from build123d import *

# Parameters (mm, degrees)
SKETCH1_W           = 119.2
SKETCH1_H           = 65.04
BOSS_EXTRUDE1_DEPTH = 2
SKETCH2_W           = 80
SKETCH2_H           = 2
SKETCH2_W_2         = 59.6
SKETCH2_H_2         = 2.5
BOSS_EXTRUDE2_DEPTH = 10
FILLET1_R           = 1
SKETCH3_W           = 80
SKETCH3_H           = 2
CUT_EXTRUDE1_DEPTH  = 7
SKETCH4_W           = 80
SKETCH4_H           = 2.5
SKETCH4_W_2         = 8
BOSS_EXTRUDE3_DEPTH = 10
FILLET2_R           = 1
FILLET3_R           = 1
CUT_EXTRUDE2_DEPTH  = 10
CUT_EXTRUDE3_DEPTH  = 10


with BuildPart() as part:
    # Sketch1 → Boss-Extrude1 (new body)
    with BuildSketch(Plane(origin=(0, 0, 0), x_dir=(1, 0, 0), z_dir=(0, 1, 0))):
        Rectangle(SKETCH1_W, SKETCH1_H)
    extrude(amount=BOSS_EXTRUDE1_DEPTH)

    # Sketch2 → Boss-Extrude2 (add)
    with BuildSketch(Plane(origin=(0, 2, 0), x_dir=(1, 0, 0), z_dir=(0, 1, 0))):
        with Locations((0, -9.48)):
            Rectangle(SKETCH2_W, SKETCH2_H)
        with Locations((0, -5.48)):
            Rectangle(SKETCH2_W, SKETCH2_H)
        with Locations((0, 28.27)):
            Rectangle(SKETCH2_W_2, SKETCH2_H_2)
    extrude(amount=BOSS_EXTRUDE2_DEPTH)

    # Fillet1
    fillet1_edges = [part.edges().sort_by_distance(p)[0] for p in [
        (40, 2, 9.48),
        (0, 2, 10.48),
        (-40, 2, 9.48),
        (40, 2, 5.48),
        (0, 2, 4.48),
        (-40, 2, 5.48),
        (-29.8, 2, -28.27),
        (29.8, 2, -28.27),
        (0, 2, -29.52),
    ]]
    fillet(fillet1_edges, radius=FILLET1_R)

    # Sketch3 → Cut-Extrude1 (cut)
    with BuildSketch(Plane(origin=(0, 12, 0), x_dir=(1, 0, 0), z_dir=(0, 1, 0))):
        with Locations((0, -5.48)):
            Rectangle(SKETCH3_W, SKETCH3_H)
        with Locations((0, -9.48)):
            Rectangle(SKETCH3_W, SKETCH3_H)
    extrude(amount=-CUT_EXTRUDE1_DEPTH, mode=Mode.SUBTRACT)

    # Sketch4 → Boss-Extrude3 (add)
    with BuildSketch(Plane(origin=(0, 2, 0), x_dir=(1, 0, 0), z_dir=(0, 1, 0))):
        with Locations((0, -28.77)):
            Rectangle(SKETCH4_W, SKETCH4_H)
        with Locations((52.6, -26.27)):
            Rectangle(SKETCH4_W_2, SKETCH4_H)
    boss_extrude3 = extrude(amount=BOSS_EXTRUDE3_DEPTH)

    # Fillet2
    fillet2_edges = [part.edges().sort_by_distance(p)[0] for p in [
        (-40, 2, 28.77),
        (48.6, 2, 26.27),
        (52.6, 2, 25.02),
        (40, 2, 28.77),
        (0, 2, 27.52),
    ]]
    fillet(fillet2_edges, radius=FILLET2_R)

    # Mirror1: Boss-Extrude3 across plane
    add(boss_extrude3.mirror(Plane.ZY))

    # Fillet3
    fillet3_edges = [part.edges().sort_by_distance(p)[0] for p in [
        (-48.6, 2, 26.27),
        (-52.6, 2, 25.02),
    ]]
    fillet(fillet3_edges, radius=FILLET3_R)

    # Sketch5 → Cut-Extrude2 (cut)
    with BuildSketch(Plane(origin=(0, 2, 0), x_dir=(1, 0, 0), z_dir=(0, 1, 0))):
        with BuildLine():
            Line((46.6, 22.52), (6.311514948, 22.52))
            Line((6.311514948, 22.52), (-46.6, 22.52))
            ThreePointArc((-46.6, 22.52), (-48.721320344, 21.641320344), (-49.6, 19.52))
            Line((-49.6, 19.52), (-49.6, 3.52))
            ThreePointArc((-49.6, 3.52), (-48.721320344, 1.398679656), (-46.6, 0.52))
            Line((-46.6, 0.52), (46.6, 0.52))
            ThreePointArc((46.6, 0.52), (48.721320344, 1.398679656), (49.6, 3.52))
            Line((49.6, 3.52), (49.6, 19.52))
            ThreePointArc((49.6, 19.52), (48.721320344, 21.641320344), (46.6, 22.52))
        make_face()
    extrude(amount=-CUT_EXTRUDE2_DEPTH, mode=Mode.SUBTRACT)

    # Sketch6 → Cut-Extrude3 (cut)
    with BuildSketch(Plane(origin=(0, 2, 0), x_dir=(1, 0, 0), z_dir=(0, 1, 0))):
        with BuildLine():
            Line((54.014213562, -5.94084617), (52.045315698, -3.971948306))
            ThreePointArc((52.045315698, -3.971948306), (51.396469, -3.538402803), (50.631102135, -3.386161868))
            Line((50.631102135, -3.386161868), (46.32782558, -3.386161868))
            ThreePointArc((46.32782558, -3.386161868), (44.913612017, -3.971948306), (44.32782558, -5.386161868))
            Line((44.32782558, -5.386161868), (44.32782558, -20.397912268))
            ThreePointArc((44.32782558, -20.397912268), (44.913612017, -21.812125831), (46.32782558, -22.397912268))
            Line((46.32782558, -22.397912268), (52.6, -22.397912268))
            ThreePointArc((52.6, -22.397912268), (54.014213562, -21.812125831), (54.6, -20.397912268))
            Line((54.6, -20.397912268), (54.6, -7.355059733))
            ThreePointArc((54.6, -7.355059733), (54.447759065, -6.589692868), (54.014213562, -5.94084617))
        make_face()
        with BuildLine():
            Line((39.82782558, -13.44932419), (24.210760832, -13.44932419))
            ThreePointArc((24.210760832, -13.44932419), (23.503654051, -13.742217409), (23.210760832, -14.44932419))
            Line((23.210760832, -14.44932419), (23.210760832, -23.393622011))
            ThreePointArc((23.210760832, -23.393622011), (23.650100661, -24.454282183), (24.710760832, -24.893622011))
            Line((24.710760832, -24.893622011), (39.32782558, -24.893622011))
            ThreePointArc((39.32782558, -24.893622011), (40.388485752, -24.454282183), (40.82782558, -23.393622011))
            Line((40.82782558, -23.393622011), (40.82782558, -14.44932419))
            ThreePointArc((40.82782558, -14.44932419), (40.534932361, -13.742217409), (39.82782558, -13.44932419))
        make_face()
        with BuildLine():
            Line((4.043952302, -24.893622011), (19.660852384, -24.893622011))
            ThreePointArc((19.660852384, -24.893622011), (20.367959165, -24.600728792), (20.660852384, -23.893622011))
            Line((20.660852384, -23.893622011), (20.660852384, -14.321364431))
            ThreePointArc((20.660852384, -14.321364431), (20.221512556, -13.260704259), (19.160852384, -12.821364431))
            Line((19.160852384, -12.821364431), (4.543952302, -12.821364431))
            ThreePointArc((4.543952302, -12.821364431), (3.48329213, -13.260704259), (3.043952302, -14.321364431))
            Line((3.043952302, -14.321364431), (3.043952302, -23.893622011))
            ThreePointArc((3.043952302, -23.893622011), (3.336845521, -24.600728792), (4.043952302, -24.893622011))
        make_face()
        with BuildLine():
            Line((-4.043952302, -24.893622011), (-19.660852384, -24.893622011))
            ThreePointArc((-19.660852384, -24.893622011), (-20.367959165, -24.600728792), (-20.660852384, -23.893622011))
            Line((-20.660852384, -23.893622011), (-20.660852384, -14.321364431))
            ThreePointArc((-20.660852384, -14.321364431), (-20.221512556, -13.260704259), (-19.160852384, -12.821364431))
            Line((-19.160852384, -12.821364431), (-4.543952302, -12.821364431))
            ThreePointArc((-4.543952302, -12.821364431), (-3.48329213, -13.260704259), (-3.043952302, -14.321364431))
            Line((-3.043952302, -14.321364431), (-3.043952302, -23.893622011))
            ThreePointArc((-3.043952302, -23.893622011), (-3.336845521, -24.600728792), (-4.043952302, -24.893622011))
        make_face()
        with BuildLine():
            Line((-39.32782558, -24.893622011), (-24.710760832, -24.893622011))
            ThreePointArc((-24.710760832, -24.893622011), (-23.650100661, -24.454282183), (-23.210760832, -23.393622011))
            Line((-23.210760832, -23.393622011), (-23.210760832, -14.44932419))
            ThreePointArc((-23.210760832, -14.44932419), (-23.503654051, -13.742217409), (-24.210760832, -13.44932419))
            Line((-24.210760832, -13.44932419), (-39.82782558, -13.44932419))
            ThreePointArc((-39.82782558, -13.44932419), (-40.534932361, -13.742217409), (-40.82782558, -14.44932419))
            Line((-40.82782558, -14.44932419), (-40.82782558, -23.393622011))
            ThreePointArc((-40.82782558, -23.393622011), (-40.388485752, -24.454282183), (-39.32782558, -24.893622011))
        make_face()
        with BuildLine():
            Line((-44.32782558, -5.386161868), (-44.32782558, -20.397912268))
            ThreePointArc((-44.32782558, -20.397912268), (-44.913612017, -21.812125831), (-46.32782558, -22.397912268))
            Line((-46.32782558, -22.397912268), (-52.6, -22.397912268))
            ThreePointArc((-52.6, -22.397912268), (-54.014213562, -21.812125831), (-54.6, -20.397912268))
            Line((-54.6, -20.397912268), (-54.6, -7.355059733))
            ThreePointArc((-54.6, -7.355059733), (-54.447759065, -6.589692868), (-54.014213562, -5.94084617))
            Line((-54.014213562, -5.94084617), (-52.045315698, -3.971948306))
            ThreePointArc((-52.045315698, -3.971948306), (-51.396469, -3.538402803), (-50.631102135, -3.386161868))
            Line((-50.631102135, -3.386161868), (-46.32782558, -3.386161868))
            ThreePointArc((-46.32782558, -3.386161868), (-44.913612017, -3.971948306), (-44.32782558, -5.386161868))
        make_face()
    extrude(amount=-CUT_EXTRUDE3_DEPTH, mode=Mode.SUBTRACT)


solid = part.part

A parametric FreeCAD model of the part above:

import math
import FreeCAD as App
import Part
import Sketcher

V = App.Vector


def edges_at(feature, points):
    """Names of the edges that pass closest to the given points."""
    edges = feature.Shape.Edges
    near = lambda p: min(range(len(edges)), key=lambda i: edges[i].distToShape(Part.Vertex(*p))[0])
    return sorted({f"Edge{near(p) + 1}" for p in points})


def add_polygon(sketch, points):
    """Adds a closed chain of lines whose ends are joined by coincident constraints."""
    first, n = sketch.GeometryCount, len(points)
    for a, b in zip(points, points[1:] + points[:1]):
        sketch.addGeometry(Part.LineSegment(App.Vector(*a, 0), App.Vector(*b, 0)), False)
    for i in range(n):
        sketch.addConstraint(Sketcher.Constraint("Coincident", first + i, 2, first + (i + 1) % n, 1))

doc = App.newDocument("Part")
body = doc.addObject("PartDesign::Body", "Body")

# Sketch on XZ plane
sketch1 = body.newObject("Sketcher::SketchObject", "Sketch")
sketch1.AttachmentSupport = (doc.getObject("XZ_Plane"), [""])
sketch1.MapMode = "FlatFace"
add_polygon(sketch1, [(-60, -33), (-60, 33), (60, 33), (60, -33)])  # lines 0-3
sketch1.addConstraint([
    Sketcher.Constraint("Vertical", 0),
    Sketcher.Constraint("Horizontal", 1),
    Sketcher.Constraint("Vertical", 2),
    Sketcher.Constraint("Horizontal", 3),
    Sketcher.Constraint("Symmetric", 0, 2, 2, 2, -1, 1),
    Sketcher.Constraint("DistanceX", 1, 1, 1, 2, 119.2),
    Sketcher.Constraint("DistanceY", 0, 1, 0, 2, 65.04),
])
pad1 = body.newObject("PartDesign::Pad", "Pad")
pad1.Profile = sketch1
pad1.Length = 2
pad1.Reversed = True

# Sketch on XZ plane
sketch2 = body.newObject("Sketcher::SketchObject", "Sketch001")
sketch2.AttachmentSupport = (doc.getObject("XZ_Plane"), [""])
sketch2.MapMode = "FlatFace"
sketch2.AttachmentOffset = App.Placement(V(0, 0, -2), App.Rotation())
add_polygon(sketch2, [(-40, 8.5), (-40, 10.5), (40, 10.5), (40, 8.5)])  # lines 0-3
add_polygon(sketch2, [(-40, 4.5), (-40, 6.5), (40, 6.5), (40, 4.5)])  # lines 4-7
add_polygon(sketch2, [(-29.8, -29.5), (-29.8, -27), (29.8, -27), (29.8, -29.5)])  # lines 8-11
sketch2.addConstraint([
    Sketcher.Constraint("Vertical", 0),
    Sketcher.Constraint("Horizontal", 1),
    Sketcher.Constraint("Vertical", 2),
    Sketcher.Constraint("Horizontal", 3),
    Sketcher.Constraint("Vertical", 4),
    Sketcher.Constraint("Horizontal", 5),
    Sketcher.Constraint("Vertical", 6),
    Sketcher.Constraint("Horizontal", 7),
    Sketcher.Constraint("Vertical", 8),
    Sketcher.Constraint("Horizontal", 9),
    Sketcher.Constraint("Vertical", 10),
    Sketcher.Constraint("Horizontal", 11),
    Sketcher.Constraint("Vertical", 3, 2, 4, 2),
    Sketcher.Constraint("Vertical", 2, 2, 5, 2),
    Sketcher.Constraint("Equal", 2, 4),
    Sketcher.Constraint("DistanceX", 1, 1, 1, 2, 80.0),
    Sketcher.Constraint("DistanceY", 0, 1, 0, 2, 2.0),
    Sketcher.Constraint("DistanceX", 9, 1, 9, 2, 59.6),
    Sketcher.Constraint("DistanceY", 8, 1, 8, 2, 2.5),
    Sketcher.Constraint("DistanceX", 0, 2, -1, 1, 40.0),
    Sketcher.Constraint("DistanceY", 4, 2, 3, 2, 2.0),
    Sketcher.Constraint("DistanceY", 10, 2, 6, 2, 34.0),
    Sketcher.Constraint("DistanceX", 8, 2, -1, 1, 29.8),
    Sketcher.Constraint("DistanceY", -1, 1, 0, 2, 10.48),
])
pad2 = body.newObject("PartDesign::Pad", "Pad001")
pad2.Profile = sketch2
pad2.Length = 10
pad2.Reversed = True
doc.recompute()

fillet = body.newObject("PartDesign::Fillet", "Fillet")
fillet.Base = (pad2, edges_at(pad2, [
    (40, 2, 9.48),
    (0, 2, 10.48),
    (-40, 2, 9.48),
    (40, 2, 5.48),
    (0, 2, 4.48),
    (-40, 2, 5.48),
    (-29.8, 2, -28.27),
    (29.8, 2, -28.27),
    (0, 2, -29.52),
]))
fillet.Radius = 1

# Sketch on XZ plane
sketch3 = body.newObject("Sketcher::SketchObject", "Sketch002")
sketch3.AttachmentSupport = (doc.getObject("XZ_Plane"), [""])
sketch3.MapMode = "FlatFace"
sketch3.AttachmentOffset = App.Placement(V(0, 0, -12), App.Rotation())
add_polygon(sketch3, [(-40, 4.5), (-40, 6.5), (40, 6.5), (40, 4.5)])  # lines 0-3
add_polygon(sketch3, [(-40, 8.5), (-40, 10.5), (40, 10.5), (40, 8.5)])  # lines 4-7
sketch3.addConstraint([
    Sketcher.Constraint("Vertical", 0),
    Sketcher.Constraint("Horizontal", 1),
    Sketcher.Constraint("Vertical", 2),
    Sketcher.Constraint("Horizontal", 3),
    Sketcher.Constraint("Vertical", 4),
    Sketcher.Constraint("Horizontal", 5),
    Sketcher.Constraint("Vertical", 6),
    Sketcher.Constraint("Horizontal", 7),
    Sketcher.Constraint("Vertical", 3, 2, 4, 2),
    Sketcher.Constraint("Vertical", 2, 2, 5, 2),
    Sketcher.Constraint("Equal", 2, 4),
    Sketcher.Constraint("DistanceX", 1, 1, 1, 2, 80.0),
    Sketcher.Constraint("DistanceY", 0, 1, 0, 2, 2.0),
    Sketcher.Constraint("DistanceX", 0, 2, -1, 1, 40.0),
    Sketcher.Constraint("DistanceY", 0, 2, 4, 2, 4.0),
    Sketcher.Constraint("DistanceY", -1, 1, 0, 2, 6.48),
])
pocket1 = body.newObject("PartDesign::Pocket", "Pocket")
pocket1.Profile = sketch3
pocket1.Length = 7
pocket1.Reversed = True

# Sketch on XZ plane
sketch4 = body.newObject("Sketcher::SketchObject", "Sketch003")
sketch4.AttachmentSupport = (doc.getObject("XZ_Plane"), [""])
sketch4.MapMode = "FlatFace"
sketch4.AttachmentOffset = App.Placement(V(0, 0, -2), App.Rotation())
add_polygon(sketch4, [(-40, 27.5), (-40, 30), (40, 30), (40, 27.5)])  # lines 0-3
add_polygon(sketch4, [(48.6, 25), (48.6, 27.5), (56.6, 27.5), (56.6, 25)])  # lines 4-7
sketch4.addConstraint([
    Sketcher.Constraint("Vertical", 0),
    Sketcher.Constraint("Horizontal", 1),
    Sketcher.Constraint("Vertical", 2),
    Sketcher.Constraint("Horizontal", 3),
    Sketcher.Constraint("Vertical", 4),
    Sketcher.Constraint("Horizontal", 5),
    Sketcher.Constraint("Vertical", 6),
    Sketcher.Constraint("Horizontal", 7),
    Sketcher.Constraint("Horizontal", 3, 2, 4, 2),
    Sketcher.Constraint("Equal", 2, 4),
    Sketcher.Constraint("DistanceX", 1, 1, 1, 2, 80.0),
    Sketcher.Constraint("DistanceX", 5, 1, 5, 2, 8.0),
    Sketcher.Constraint("DistanceY", 0, 1, 0, 2, 2.5),
    Sketcher.Constraint("DistanceX", 0, 2, -1, 1, 40.0),
    Sketcher.Constraint("DistanceX", -1, 1, 4, 2, 48.6),
    Sketcher.Constraint("DistanceY", -1, 1, 0, 2, 30.02),
])
pad3 = body.newObject("PartDesign::Pad", "Pad002")
pad3.Profile = sketch4
pad3.Length = 10
pad3.Reversed = True
doc.recompute()

fillet2 = body.newObject("PartDesign::Fillet", "Fillet001")
fillet2.Base = (pad3, edges_at(pad3, [
    (-40, 2, 28.77),
    (48.6, 2, 26.27),
    (52.6, 2, 25.02),
    (40, 2, 28.77),
    (0, 2, 27.52),
]))
fillet2.Radius = 1
doc.recompute()

mirrored = body.newObject("PartDesign::Mirrored", "Mirrored")
mirrored.Originals = [pad3]
mirrored.MirrorPlane = (doc.getObject("YZ_Plane"), [""])
body.Tip = mirrored
doc.recompute()

fillet3 = body.newObject("PartDesign::Fillet", "Fillet002")
fillet3.Base = (mirrored, edges_at(mirrored, [(-48.6, 2, 26.27), (-52.6, 2, 25.02)]))
fillet3.Radius = 1

# Sketch on XZ plane
sketch5 = body.newObject("Sketcher::SketchObject", "Sketch004")
sketch5.AttachmentSupport = (doc.getObject("XZ_Plane"), [""])
sketch5.MapMode = "FlatFace"
sketch5.AttachmentOffset = App.Placement(V(0, 0, -2), App.Rotation())
sketch5.addGeometry([
    Part.LineSegment(V(46.6, -22.5, 0), V(-46.6, -22.5, 0)),  # 0
    Part.ArcOfCircle(Part.Circle(V(-46.6, -19.5, 0), V(0, 0, 1), 3), math.radians(180), math.radians(270)),  # 1
    Part.LineSegment(V(-49.6, -19.5, 0), V(-49.6, -3.5, 0)),  # 2
    Part.ArcOfCircle(Part.Circle(V(-46.6, -3.5, 0), V(0, 0, 1), 3), math.radians(90), math.radians(180)),  # 3
    Part.LineSegment(V(-46.6, -0.5, 0), V(46.6, -0.5, 0)),  # 4
    Part.ArcOfCircle(Part.Circle(V(46.6, -3.5, 0), V(0, 0, 1), 3), math.radians(0), math.radians(90)),  # 5
    Part.LineSegment(V(49.6, -3.5, 0), V(49.6, -19.5, 0)),  # 6
    Part.ArcOfCircle(Part.Circle(V(46.6, -19.5, 0), V(0, 0, 1), 3), math.radians(-90), math.radians(0)),  # 7
], False)
sketch5.addConstraint([
    Sketcher.Constraint("Tangent", 0, 2, 1, 2),
    Sketcher.Constraint("Tangent", 1, 1, 2, 1),
    Sketcher.Constraint("Tangent", 2, 2, 3, 2),
    Sketcher.Constraint("Tangent", 3, 1, 4, 1),
    Sketcher.Constraint("Tangent", 4, 2, 5, 2),
    Sketcher.Constraint("Tangent", 5, 1, 6, 1),
    Sketcher.Constraint("Tangent", 6, 2, 7, 2),
    Sketcher.Constraint("Tangent", 7, 1, 0, 1),
    Sketcher.Constraint("Horizontal", 0),
    Sketcher.Constraint("Vertical", 2),
    Sketcher.Constraint("Horizontal", 4),
    Sketcher.Constraint("Vertical", 6),
    Sketcher.Constraint("Equal", 1, 3),
    Sketcher.Constraint("Equal", 3, 5),
    Sketcher.Constraint("Equal", 5, 7),
    Sketcher.Constraint("Radius", 1, 3.0),
    Sketcher.Constraint("DistanceY", 2, 1, 2, 2, 16.0),
    Sketcher.Constraint("DistanceX", 0, 2, 0, 1, 93.2),
    Sketcher.Constraint("DistanceX", 1, 3, -1, 1, 46.6),
    Sketcher.Constraint("DistanceY", 1, 3, -1, 1, 19.52),
])
pocket2 = body.newObject("PartDesign::Pocket", "Pocket001")
pocket2.Profile = sketch5
pocket2.Length = 10
pocket2.Reversed = True

# Sketch on XZ plane
sketch6 = body.newObject("Sketcher::SketchObject", "Sketch005")
sketch6.AttachmentSupport = (doc.getObject("XZ_Plane"), [""])
sketch6.MapMode = "FlatFace"
sketch6.AttachmentOffset = App.Placement(V(0, 0, -2), App.Rotation())
sketch6.addGeometry([
    Part.LineSegment(V(54, 5.9, 0), V(52, 4, 0)),  # 0
    Part.ArcOfCircle(Part.Circle(V(50.6, 5.4, 0), V(0, 0, 1), 2), math.radians(-90), math.radians(-45)),  # 1
    Part.LineSegment(V(50.6, 3.4, 0), V(46.3, 3.4, 0)),  # 2
    Part.ArcOfCircle(Part.Circle(V(46.3, 5.4, 0), V(0, 0, 1), 2), math.radians(180), math.radians(270)),  # 3
    Part.LineSegment(V(44.3, 5.4, 0), V(44.3, 20.4, 0)),  # 4
    Part.ArcOfCircle(Part.Circle(V(46.3, 20.4, 0), V(0, 0, 1), 2), math.radians(90), math.radians(180)),  # 5
    Part.LineSegment(V(46.3, 22.4, 0), V(52.6, 22.4, 0)),  # 6
    Part.ArcOfCircle(Part.Circle(V(52.6, 20.4, 0), V(0, 0, 1), 2), math.radians(0), math.radians(90)),  # 7
    Part.LineSegment(V(54.6, 20.4, 0), V(54.6, 7.4, 0)),  # 8
    Part.ArcOfCircle(Part.Circle(V(52.6, 7.4, 0), V(0, 0, 1), 2), math.radians(-45), math.radians(0)),  # 9
    Part.LineSegment(V(39.8, 13.4, 0), V(24.2, 13.4, 0)),  # 10
    Part.ArcOfCircle(Part.Circle(V(24.2, 14.4, 0), V(0, 0, 1), 1), math.radians(-180), math.radians(-90)),  # 11
    Part.LineSegment(V(23.2, 14.4, 0), V(23.2, 23.4, 0)),  # 12
    Part.ArcOfCircle(Part.Circle(V(24.7, 23.4, 0), V(0, 0, 1), 1.5), math.radians(90), math.radians(180)),  # 13
    Part.LineSegment(V(24.7, 24.9, 0), V(39.3, 24.9, 0)),  # 14
    Part.ArcOfCircle(Part.Circle(V(39.3, 23.4, 0), V(0, 0, 1), 1.5), math.radians(0), math.radians(90)),  # 15
    Part.LineSegment(V(40.8, 23.4, 0), V(40.8, 14.4, 0)),  # 16
    Part.ArcOfCircle(Part.Circle(V(39.8, 14.4, 0), V(0, 0, 1), 1), math.radians(-90), math.radians(0)),  # 17
    Part.LineSegment(V(4, 24.9, 0), V(19.7, 24.9, 0)),  # 18
    Part.ArcOfCircle(Part.Circle(V(19.7, 23.9, 0), V(0, 0, 1), 1), math.radians(0), math.radians(90)),  # 19
    Part.LineSegment(V(20.7, 23.9, 0), V(20.7, 14.3, 0)),  # 20
    Part.ArcOfCircle(Part.Circle(V(19.2, 14.3, 0), V(0, 0, 1), 1.5), math.radians(-90), math.radians(0)),  # 21
    Part.LineSegment(V(19.2, 12.8, 0), V(4.5, 12.8, 0)),  # 22
    Part.ArcOfCircle(Part.Circle(V(4.5, 14.3, 0), V(0, 0, 1), 1.5), math.radians(180), math.radians(270)),  # 23
    Part.LineSegment(V(3, 14.3, 0), V(3, 23.9, 0)),  # 24
    Part.ArcOfCircle(Part.Circle(V(4, 23.9, 0), V(0, 0, 1), 1), math.radians(90), math.radians(180)),  # 25
    Part.LineSegment(V(-19.7, 24.9, 0), V(-4, 24.9, 0)),  # 26
    Part.ArcOfCircle(Part.Circle(V(-4, 23.9, 0), V(0, 0, 1), 1), math.radians(0), math.radians(90)),  # 27
    Part.LineSegment(V(-3, 23.9, 0), V(-3, 14.3, 0)),  # 28
    Part.ArcOfCircle(Part.Circle(V(-4.5, 14.3, 0), V(0, 0, 1), 1.5), math.radians(-90), math.radians(0)),  # 29
    Part.LineSegment(V(-4.5, 12.8, 0), V(-19.2, 12.8, 0)),  # 30
    Part.ArcOfCircle(Part.Circle(V(-19.2, 14.3, 0), V(0, 0, 1), 1.5), math.radians(180), math.radians(270)),  # 31
    Part.LineSegment(V(-20.7, 14.3, 0), V(-20.7, 23.9, 0)),  # 32
    Part.ArcOfCircle(Part.Circle(V(-19.7, 23.9, 0), V(0, 0, 1), 1), math.radians(90), math.radians(180)),  # 33
    Part.LineSegment(V(-39.3, 24.9, 0), V(-24.7, 24.9, 0)),  # 34
    Part.ArcOfCircle(Part.Circle(V(-24.7, 23.4, 0), V(0, 0, 1), 1.5), math.radians(0), math.radians(90)),  # 35
    Part.LineSegment(V(-23.2, 23.4, 0), V(-23.2, 14.4, 0)),  # 36
    Part.ArcOfCircle(Part.Circle(V(-24.2, 14.4, 0), V(0, 0, 1), 1), math.radians(-90), math.radians(0)),  # 37
    Part.LineSegment(V(-24.2, 13.4, 0), V(-39.8, 13.4, 0)),  # 38
    Part.ArcOfCircle(Part.Circle(V(-39.8, 14.4, 0), V(0, 0, 1), 1), math.radians(-180), math.radians(-90)),  # 39
    Part.LineSegment(V(-40.8, 14.4, 0), V(-40.8, 23.4, 0)),  # 40
    Part.ArcOfCircle(Part.Circle(V(-39.3, 23.4, 0), V(0, 0, 1), 1.5), math.radians(90), math.radians(180)),  # 41
    Part.LineSegment(V(-44.3, 20.4, 0), V(-44.3, 5.4, 0)),  # 42
    Part.ArcOfCircle(Part.Circle(V(-46.3, 5.4, 0), V(0, 0, 1), 2), math.radians(-90), math.radians(0)),  # 43
    Part.LineSegment(V(-46.3, 3.4, 0), V(-50.6, 3.4, 0)),  # 44
    Part.ArcOfCircle(Part.Circle(V(-50.6, 5.4, 0), V(0, 0, 1), 2), math.radians(-135), math.radians(-90)),  # 45
    Part.LineSegment(V(-52, 4, 0), V(-54, 5.9, 0)),  # 46
    Part.ArcOfCircle(Part.Circle(V(-52.6, 7.4, 0), V(0, 0, 1), 2), math.radians(180), math.radians(225)),  # 47
    Part.LineSegment(V(-54.6, 7.4, 0), V(-54.6, 20.4, 0)),  # 48
    Part.ArcOfCircle(Part.Circle(V(-52.6, 20.4, 0), V(0, 0, 1), 2), math.radians(90), math.radians(180)),  # 49
    Part.LineSegment(V(-52.6, 22.4, 0), V(-46.3, 22.4, 0)),  # 50
    Part.ArcOfCircle(Part.Circle(V(-46.3, 20.4, 0), V(0, 0, 1), 2), math.radians(0), math.radians(90)),  # 51
], False)
sketch6.addConstraint([
    Sketcher.Constraint("Tangent", 0, 2, 1, 2),
    Sketcher.Constraint("Tangent", 1, 1, 2, 1),
    Sketcher.Constraint("Tangent", 2, 2, 3, 2),
    Sketcher.Constraint("Tangent", 3, 1, 4, 1),
    Sketcher.Constraint("Tangent", 4, 2, 5, 2),
    Sketcher.Constraint("Tangent", 5, 1, 6, 1),
    Sketcher.Constraint("Tangent", 6, 2, 7, 2),
    Sketcher.Constraint("Tangent", 7, 1, 8, 1),
    Sketcher.Constraint("Tangent", 8, 2, 9, 2),
    Sketcher.Constraint("Tangent", 9, 1, 0, 1),
    Sketcher.Constraint("Tangent", 10, 2, 11, 2),
    Sketcher.Constraint("Tangent", 11, 1, 12, 1),
    Sketcher.Constraint("Tangent", 12, 2, 13, 2),
    Sketcher.Constraint("Tangent", 13, 1, 14, 1),
    Sketcher.Constraint("Tangent", 14, 2, 15, 2),
    Sketcher.Constraint("Tangent", 15, 1, 16, 1),
    Sketcher.Constraint("Tangent", 16, 2, 17, 2),
    Sketcher.Constraint("Tangent", 17, 1, 10, 1),
    Sketcher.Constraint("Tangent", 18, 2, 19, 2),
    Sketcher.Constraint("Tangent", 19, 1, 20, 1),
    Sketcher.Constraint("Tangent", 20, 2, 21, 2),
    Sketcher.Constraint("Tangent", 21, 1, 22, 1),
    Sketcher.Constraint("Tangent", 22, 2, 23, 2),
    Sketcher.Constraint("Tangent", 23, 1, 24, 1),
    Sketcher.Constraint("Tangent", 24, 2, 25, 2),
    Sketcher.Constraint("Tangent", 25, 1, 18, 1),
    Sketcher.Constraint("Tangent", 26, 2, 27, 2),
    Sketcher.Constraint("Tangent", 27, 1, 28, 1),
    Sketcher.Constraint("Tangent", 28, 2, 29, 2),
    Sketcher.Constraint("Tangent", 29, 1, 30, 1),
    Sketcher.Constraint("Tangent", 30, 2, 31, 2),
    Sketcher.Constraint("Tangent", 31, 1, 32, 1),
    Sketcher.Constraint("Tangent", 32, 2, 33, 2),
    Sketcher.Constraint("Tangent", 33, 1, 26, 1),
    Sketcher.Constraint("Tangent", 34, 2, 35, 2),
    Sketcher.Constraint("Tangent", 35, 1, 36, 1),
    Sketcher.Constraint("Tangent", 36, 2, 37, 2),
    Sketcher.Constraint("Tangent", 37, 1, 38, 1),
    Sketcher.Constraint("Tangent", 38, 2, 39, 2),
    Sketcher.Constraint("Tangent", 39, 1, 40, 1),
    Sketcher.Constraint("Tangent", 40, 2, 41, 2),
    Sketcher.Constraint("Tangent", 41, 1, 34, 1),
    Sketcher.Constraint("Tangent", 42, 2, 43, 2),
    Sketcher.Constraint("Tangent", 43, 1, 44, 1),
    Sketcher.Constraint("Tangent", 44, 2, 45, 2),
    Sketcher.Constraint("Tangent", 45, 1, 46, 1),
    Sketcher.Constraint("Tangent", 46, 2, 47, 2),
    Sketcher.Constraint("Tangent", 47, 1, 48, 1),
    Sketcher.Constraint("Tangent", 48, 2, 49, 2),
    Sketcher.Constraint("Tangent", 49, 1, 50, 1),
    Sketcher.Constraint("Tangent", 50, 2, 51, 2),
    Sketcher.Constraint("Tangent", 51, 1, 42, 1),
    Sketcher.Constraint("Horizontal", 2),
    Sketcher.Constraint("Vertical", 4),
    Sketcher.Constraint("Horizontal", 6),
    Sketcher.Constraint("Vertical", 8),
    Sketcher.Constraint("Horizontal", 10),
    Sketcher.Constraint("Vertical", 12),
    Sketcher.Constraint("Horizontal", 14),
    Sketcher.Constraint("Vertical", 16),
    Sketcher.Constraint("Horizontal", 18),
    Sketcher.Constraint("Vertical", 20),
    Sketcher.Constraint("Horizontal", 22),
    Sketcher.Constraint("Vertical", 24),
    Sketcher.Constraint("Horizontal", 26),
    Sketcher.Constraint("Vertical", 28),
    Sketcher.Constraint("Horizontal", 30),
    Sketcher.Constraint("Vertical", 32),
    Sketcher.Constraint("Horizontal", 34),
    Sketcher.Constraint("Vertical", 36),
    Sketcher.Constraint("Horizontal", 38),
    Sketcher.Constraint("Vertical", 40),
    Sketcher.Constraint("Vertical", 42),
    Sketcher.Constraint("Horizontal", 44),
    Sketcher.Constraint("Vertical", 48),
    Sketcher.Constraint("Horizontal", 50),
    Sketcher.Constraint("Equal", 1, 3),
    Sketcher.Constraint("Equal", 3, 5),
    Sketcher.Constraint("Equal", 5, 7),
    Sketcher.Constraint("Equal", 7, 9),
    Sketcher.Constraint("Equal", 13, 15),
    Sketcher.Constraint("Equal", 11, 17),
    Sketcher.Constraint("Equal", 17, 19),
    Sketcher.Constraint("Equal", 15, 21),
    Sketcher.Constraint("Equal", 21, 23),
    Sketcher.Constraint("Equal", 19, 25),
    Sketcher.Constraint("Equal", 25, 27),
    Sketcher.Constraint("Equal", 23, 29),
    Sketcher.Constraint("Equal", 29, 31),
    Sketcher.Constraint("Equal", 27, 33),
    Sketcher.Constraint("Equal", 31, 35),
    Sketcher.Constraint("Equal", 33, 37),
    Sketcher.Constraint("Equal", 37, 39),
    Sketcher.Constraint("Equal", 35, 41),
    Sketcher.Constraint("Equal", 9, 43),
    Sketcher.Constraint("Equal", 43, 45),
    Sketcher.Constraint("Equal", 45, 47),
    Sketcher.Constraint("Equal", 47, 49),
    Sketcher.Constraint("Equal", 49, 51),
    Sketcher.Constraint("Symmetric", 25, 3, 27, 3, -2),
    Sketcher.Constraint("Symmetric", 21, 3, 31, 3, -2),
    Sketcher.Constraint("Symmetric", 13, 3, 35, 3, -2),
    Sketcher.Constraint("Symmetric", 17, 3, 39, 3, -2),
    Sketcher.Constraint("Symmetric", 3, 3, 43, 3, -2),
    Sketcher.Constraint("Symmetric", 9, 3, 47, 3, -2),
    Sketcher.Constraint("Perpendicular", 0, 46),
    Sketcher.Constraint("Horizontal", 7, 3, 49, 3),
    Sketcher.Constraint("Horizontal", 14, 2, 18, 2),
    Sketcher.Constraint("Horizontal", 0, 2, 45, 1),
    Sketcher.Constraint("Radius", 1, 2.0),
    Sketcher.Constraint("Radius", 11, 1.0),
    Sketcher.Constraint("Radius", 13, 1.5),
    Sketcher.Constraint("DistanceX", -1, 1, 7, 3, 52.6),
    Sketcher.Constraint("DistanceX", 18, 1, 18, 2, 15.6169),
    Sketcher.Constraint("DistanceY", 4, 1, 4, 2, 15.01175),
    Sketcher.Constraint("DistanceX", 2, 2, 2, 1, 4.303277),
    Sketcher.Constraint("DistanceX", 6, 1, 6, 2, 6.272174),
    Sketcher.Constraint("DistanceX", 10, 2, 10, 1, 15.617065),
    Sketcher.Constraint("DistanceY", 12, 1, 12, 2, 8.944298),
    Sketcher.Constraint("DistanceY", 20, 2, 20, 1, 9.572258),
    Sketcher.Constraint("DistanceY", -1, 1, 1, 3, 5.386162),
    Sketcher.Constraint("DistanceX", -1, 1, 11, 3, 24.210761),
    Sketcher.Constraint("DistanceY", -1, 1, 11, 3, 14.449324),
    Sketcher.Constraint("DistanceX", -1, 1, 19, 3, 19.660852),
])
pocket3 = body.newObject("PartDesign::Pocket", "Pocket002")
pocket3.Profile = sketch6
pocket3.Length = 10
pocket3.Reversed = True

doc.recompute()
